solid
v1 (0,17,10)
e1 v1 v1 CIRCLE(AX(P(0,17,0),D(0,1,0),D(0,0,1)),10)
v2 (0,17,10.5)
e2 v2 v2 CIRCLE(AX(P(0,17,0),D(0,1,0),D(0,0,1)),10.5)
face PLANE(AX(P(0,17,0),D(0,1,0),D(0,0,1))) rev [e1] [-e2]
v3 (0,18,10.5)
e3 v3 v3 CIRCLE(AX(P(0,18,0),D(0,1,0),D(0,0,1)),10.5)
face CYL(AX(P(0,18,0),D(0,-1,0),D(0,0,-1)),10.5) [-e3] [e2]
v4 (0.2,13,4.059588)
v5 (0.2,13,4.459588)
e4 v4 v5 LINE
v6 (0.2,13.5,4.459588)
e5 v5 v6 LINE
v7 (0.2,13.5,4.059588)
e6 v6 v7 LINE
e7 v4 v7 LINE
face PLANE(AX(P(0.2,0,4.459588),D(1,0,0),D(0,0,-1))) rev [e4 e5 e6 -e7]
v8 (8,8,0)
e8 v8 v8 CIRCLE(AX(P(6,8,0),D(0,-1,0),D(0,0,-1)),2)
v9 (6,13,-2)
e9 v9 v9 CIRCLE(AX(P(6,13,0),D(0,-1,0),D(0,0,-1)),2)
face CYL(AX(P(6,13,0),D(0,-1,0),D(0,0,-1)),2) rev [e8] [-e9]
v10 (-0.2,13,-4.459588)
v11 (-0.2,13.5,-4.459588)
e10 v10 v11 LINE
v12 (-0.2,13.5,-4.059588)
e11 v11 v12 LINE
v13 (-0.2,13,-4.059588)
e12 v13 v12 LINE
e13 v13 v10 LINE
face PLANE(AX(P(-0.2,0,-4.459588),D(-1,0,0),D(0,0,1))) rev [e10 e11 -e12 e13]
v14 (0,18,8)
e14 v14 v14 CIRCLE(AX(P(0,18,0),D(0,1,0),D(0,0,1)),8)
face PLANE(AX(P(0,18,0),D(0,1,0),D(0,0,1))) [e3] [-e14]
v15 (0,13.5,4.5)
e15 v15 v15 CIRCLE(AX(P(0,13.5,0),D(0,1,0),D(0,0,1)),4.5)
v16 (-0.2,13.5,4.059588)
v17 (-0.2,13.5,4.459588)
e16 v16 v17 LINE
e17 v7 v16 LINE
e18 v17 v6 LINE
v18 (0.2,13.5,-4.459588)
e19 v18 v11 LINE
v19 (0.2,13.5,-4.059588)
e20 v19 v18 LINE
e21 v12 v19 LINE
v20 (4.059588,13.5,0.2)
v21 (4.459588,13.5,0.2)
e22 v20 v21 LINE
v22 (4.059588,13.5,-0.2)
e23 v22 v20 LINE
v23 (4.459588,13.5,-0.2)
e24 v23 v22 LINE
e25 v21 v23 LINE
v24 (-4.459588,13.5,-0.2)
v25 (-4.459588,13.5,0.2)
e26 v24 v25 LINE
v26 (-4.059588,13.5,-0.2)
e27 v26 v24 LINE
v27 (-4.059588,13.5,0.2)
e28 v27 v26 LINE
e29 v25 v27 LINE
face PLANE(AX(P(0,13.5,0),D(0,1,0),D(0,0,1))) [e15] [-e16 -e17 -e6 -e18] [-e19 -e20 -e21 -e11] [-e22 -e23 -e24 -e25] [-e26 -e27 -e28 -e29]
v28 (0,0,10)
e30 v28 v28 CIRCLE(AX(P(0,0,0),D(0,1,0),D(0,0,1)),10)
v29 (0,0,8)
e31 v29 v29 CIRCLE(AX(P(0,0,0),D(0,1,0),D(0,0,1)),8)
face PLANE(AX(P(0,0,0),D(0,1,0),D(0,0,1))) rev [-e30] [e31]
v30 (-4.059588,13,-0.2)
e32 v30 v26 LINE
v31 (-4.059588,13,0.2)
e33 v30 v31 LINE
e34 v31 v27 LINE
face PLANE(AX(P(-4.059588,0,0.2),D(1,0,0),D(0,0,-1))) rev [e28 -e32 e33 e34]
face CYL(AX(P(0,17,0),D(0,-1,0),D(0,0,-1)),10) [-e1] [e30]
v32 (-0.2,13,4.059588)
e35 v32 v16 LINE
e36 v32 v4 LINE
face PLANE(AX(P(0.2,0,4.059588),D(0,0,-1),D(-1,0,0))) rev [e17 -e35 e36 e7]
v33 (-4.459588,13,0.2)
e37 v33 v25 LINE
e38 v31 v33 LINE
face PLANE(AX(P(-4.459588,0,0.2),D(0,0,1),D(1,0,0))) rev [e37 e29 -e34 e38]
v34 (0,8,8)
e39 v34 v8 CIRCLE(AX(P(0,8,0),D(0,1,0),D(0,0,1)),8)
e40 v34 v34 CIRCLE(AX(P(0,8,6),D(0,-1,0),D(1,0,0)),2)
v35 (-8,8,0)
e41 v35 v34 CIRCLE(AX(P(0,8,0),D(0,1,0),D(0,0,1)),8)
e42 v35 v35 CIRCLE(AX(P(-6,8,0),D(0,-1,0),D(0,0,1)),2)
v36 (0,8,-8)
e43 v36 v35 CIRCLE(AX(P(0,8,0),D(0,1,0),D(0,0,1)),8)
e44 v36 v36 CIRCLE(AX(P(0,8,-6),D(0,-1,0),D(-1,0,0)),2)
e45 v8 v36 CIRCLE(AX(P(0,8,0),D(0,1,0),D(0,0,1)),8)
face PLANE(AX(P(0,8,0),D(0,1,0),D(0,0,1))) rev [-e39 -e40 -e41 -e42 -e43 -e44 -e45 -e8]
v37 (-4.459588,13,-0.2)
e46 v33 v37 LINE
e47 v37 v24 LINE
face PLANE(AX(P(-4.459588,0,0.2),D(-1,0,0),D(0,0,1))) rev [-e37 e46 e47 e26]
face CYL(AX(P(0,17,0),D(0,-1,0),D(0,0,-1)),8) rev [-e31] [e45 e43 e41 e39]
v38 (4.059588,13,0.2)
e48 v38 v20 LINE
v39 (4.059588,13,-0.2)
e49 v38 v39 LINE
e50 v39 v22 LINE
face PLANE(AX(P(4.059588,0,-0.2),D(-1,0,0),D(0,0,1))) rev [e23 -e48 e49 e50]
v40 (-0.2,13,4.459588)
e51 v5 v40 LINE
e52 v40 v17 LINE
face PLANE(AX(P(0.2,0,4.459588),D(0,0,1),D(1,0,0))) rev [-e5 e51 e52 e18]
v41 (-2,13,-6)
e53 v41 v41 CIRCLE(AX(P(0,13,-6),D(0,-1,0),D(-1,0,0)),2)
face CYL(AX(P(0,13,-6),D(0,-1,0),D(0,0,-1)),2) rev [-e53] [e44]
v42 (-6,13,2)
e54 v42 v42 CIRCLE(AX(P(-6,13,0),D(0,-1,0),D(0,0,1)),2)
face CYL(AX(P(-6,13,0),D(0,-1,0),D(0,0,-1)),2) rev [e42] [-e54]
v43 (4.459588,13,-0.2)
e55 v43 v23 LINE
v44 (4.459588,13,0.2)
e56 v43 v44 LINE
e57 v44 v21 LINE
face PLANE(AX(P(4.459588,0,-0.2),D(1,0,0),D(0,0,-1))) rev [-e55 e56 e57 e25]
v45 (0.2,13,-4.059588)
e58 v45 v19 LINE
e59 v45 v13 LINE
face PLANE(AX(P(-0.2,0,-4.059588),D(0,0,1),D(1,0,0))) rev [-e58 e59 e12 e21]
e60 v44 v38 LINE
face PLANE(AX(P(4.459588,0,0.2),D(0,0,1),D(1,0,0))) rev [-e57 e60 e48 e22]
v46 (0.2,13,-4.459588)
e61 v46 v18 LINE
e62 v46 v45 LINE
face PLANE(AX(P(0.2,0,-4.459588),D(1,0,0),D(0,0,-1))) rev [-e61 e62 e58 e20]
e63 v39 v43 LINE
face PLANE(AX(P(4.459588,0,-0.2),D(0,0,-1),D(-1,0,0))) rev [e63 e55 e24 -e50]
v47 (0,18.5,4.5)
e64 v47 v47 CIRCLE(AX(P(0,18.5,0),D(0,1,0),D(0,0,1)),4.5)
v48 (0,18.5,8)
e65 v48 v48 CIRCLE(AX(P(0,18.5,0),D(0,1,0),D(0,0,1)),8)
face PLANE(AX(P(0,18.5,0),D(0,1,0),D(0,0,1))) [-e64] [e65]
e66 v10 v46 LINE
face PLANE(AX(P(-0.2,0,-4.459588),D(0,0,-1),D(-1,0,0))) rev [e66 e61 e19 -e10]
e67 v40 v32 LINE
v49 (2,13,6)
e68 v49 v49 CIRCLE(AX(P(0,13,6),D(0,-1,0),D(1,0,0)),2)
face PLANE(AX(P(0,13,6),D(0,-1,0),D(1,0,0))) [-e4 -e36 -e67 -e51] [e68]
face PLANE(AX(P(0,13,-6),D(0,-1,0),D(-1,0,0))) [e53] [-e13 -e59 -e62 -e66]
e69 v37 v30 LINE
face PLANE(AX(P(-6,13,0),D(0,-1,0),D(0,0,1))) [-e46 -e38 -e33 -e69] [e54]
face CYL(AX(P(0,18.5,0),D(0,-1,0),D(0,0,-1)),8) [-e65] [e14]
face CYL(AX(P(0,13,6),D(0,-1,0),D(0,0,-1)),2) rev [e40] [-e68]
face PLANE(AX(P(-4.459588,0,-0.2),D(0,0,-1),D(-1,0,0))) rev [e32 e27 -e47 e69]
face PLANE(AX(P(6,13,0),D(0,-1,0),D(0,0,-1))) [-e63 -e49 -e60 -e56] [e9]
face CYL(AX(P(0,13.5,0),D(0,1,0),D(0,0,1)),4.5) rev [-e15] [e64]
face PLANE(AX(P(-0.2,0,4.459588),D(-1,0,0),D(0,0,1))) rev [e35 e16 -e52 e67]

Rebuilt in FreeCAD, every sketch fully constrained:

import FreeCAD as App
import Part
import Sketcher
Q = App.Units.Quantity


def add_polygon(sketch, points):
    """Adds a closed chain of lines whose ends are joined by coincident constraints."""
    first, n = sketch.GeometryCount, len(points)
    for a, b in zip(points, points[1:] + points[:1]):
        sketch.addGeometry(Part.LineSegment(App.Vector(*a, 0), App.Vector(*b, 0)), False)
    for i in range(n):
        sketch.addConstraint(Sketcher.Constraint("Coincident", first + i, 2, first + (i + 1) % n, 1))

doc = App.newDocument("Part")
body = doc.addObject("PartDesign::Body", "Body")

# Sketch on XZ plane
sketch1 = doc.addObject("Sketcher::SketchObject", "Sketch")
body.addObject(sketch1)
sketch1.AttachmentSupport = (doc.XZ_Plane, [""])
sketch1.MapMode = "FlatFace"
sketch1.addGeometry([
    Part.Circle(App.Vector(0, 0, 0), App.Vector(0, 0, 1), 10),
    Part.Circle(App.Vector(0, 0, 0), App.Vector(0, 0, 1), 8),
], False)
sketch1.addConstraint([
    Sketcher.Constraint("Coincident", 0, 3, -1, 1),
    Sketcher.Constraint("Coincident", 1, 3, -1, 1),
    Sketcher.Constraint("Diameter", 0, Q("20 mm")),
    Sketcher.Constraint("Diameter", 1, Q("16 mm")),
])
pad1 = doc.addObject("PartDesign::Pad", "Pad")
body.addObject(pad1)
pad1.Profile = sketch1
pad1.Length = 17
pad1.Reversed = True

# Sketch on XZ plane
sketch2 = doc.addObject("Sketcher::SketchObject", "Sketch001")
body.addObject(sketch2)
sketch2.AttachmentSupport = (doc.XZ_Plane, [""])
sketch2.MapMode = "FlatFace"
sketch2.AttachmentOffset = App.Placement(App.Vector(0, 0, -8), App.Rotation())
sketch2.addGeometry(Part.Circle(App.Vector(0, 0, 0), App.Vector(0, 0, 1), 8), False)
sketch2.addConstraint([
    Sketcher.Constraint("Coincident", 0, 3, -1, 1),
    Sketcher.Constraint("Diameter", 0, Q("16 mm")),
])
pad2 = doc.addObject("PartDesign::Pad", "Pad001")
body.addObject(pad2)
pad2.Profile = sketch2
pad2.Length = 10.5
pad2.Reversed = True

# Sketch on XZ plane
sketch3 = doc.addObject("Sketcher::SketchObject", "Sketch002")
body.addObject(sketch3)
sketch3.AttachmentSupport = (doc.XZ_Plane, [""])
sketch3.MapMode = "FlatFace"
sketch3.AttachmentOffset = App.Placement(App.Vector(0, 0, -17), App.Rotation())
sketch3.addGeometry(Part.Circle(App.Vector(0, 0, 0), App.Vector(0, 0, 1), 10.5), False)
sketch3.addConstraint([
    Sketcher.Constraint("Coincident", 0, 3, -1, 1),
    Sketcher.Constraint("Diameter", 0, Q("21 mm")),
])
pad3 = doc.addObject("PartDesign::Pad", "Pad002")
body.addObject(pad3)
pad3.Profile = sketch3
pad3.Length = 1
pad3.Reversed = True

# Sketch on XZ plane
sketch4 = doc.addObject("Sketcher::SketchObject", "Sketch003")
body.addObject(sketch4)
sketch4.AttachmentSupport = (doc.XZ_Plane, [""])
sketch4.MapMode = "FlatFace"
sketch4.AttachmentOffset = App.Placement(App.Vector(0, 0, -18.5), App.Rotation())
sketch4.addGeometry(Part.Circle(App.Vector(0, 0, 0), App.Vector(0, 0, 1), 4.5), False)
sketch4.addConstraint([
    Sketcher.Constraint("Coincident", 0, 3, -1, 1),
    Sketcher.Constraint("Diameter", 0, Q("9 mm")),
])
pocket1 = doc.addObject("PartDesign::Pocket", "Pocket")
body.addObject(pocket1)
pocket1.Profile = sketch4
pocket1.Length = 5
pocket1.Reversed = True

# Sketch on XZ plane
sketch5 = doc.addObject("Sketcher::SketchObject", "Sketch004")
body.addObject(sketch5)
sketch5.AttachmentSupport = (doc.XZ_Plane, [""])
sketch5.MapMode = "FlatFace"
sketch5.AttachmentOffset = App.Placement(App.Vector(0, 0, -8), App.Rotation())
sketch5.addGeometry(Part.Circle(App.Vector(6, 0, 0), App.Vector(0, 0, 1), 2), False)
sketch5.addConstraint([
    Sketcher.Constraint("PointOnObject", 0, 3, -1),
    Sketcher.Constraint("Diameter", 0, Q("4 mm")),
    Sketcher.Constraint("DistanceX", -1, 1, 0, 3, Q("6 mm")),
])
pocket2 = doc.addObject("PartDesign::Pocket", "Pocket001")
body.addObject(pocket2)
pocket2.Profile = sketch5
pocket2.Length = 5
doc.recompute()

polarpattern = doc.addObject("PartDesign::PolarPattern", "PolarPattern")
body.addObject(polarpattern)
polarpattern.Originals = [pocket2]
polarpattern.Axis = (doc.Y_Axis, [""])
polarpattern.Angle = 360
polarpattern.Occurrences = 4
body.Tip = polarpattern

# Sketch on XZ plane
sketch6 = doc.addObject("Sketcher::SketchObject", "Sketch005")
body.addObject(sketch6)
sketch6.AttachmentSupport = (doc.XZ_Plane, [""])
sketch6.MapMode = "FlatFace"
sketch6.AttachmentOffset = App.Placement(App.Vector(0, 0, -13.5), App.Rotation())
add_polygon(sketch6, [(4.459588, 0.2), (4.459588, -0.2), (4.059588, -0.2), (4.059588, 0.2)])  # lines 0-3
sketch6.addConstraint([
    Sketcher.Constraint("Vertical", 0),
    Sketcher.Constraint("Horizontal", 1),
    Sketcher.Constraint("Vertical", 2),
    Sketcher.Constraint("Horizontal", 3),
    Sketcher.Constraint("Equal", 3, 0),
    Sketcher.Constraint("DistanceX", 1, 2, 1, 1, Q("0.4 mm")),
    Sketcher.Constraint("DistanceY", 0, 2, -1, 1, Q("0.2 mm")),
    Sketcher.Constraint("DistanceX", -1, 1, 0, 2, Q("4.459588 mm")),
])
pocket3 = doc.addObject("PartDesign::Pocket", "Pocket002")
body.addObject(pocket3)
pocket3.Profile = sketch6
pocket3.Type = "ThroughAll"
pocket3.Reversed = True
doc.recompute()

polarpattern2 = doc.addObject("PartDesign::PolarPattern", "PolarPattern001")
body.addObject(polarpattern2)
polarpattern2.Originals = [pocket3]
polarpattern2.Axis = (doc.Y_Axis, [""])
polarpattern2.Angle = 360
polarpattern2.Occurrences = 4
body.Tip = polarpattern2

doc.recompute()
